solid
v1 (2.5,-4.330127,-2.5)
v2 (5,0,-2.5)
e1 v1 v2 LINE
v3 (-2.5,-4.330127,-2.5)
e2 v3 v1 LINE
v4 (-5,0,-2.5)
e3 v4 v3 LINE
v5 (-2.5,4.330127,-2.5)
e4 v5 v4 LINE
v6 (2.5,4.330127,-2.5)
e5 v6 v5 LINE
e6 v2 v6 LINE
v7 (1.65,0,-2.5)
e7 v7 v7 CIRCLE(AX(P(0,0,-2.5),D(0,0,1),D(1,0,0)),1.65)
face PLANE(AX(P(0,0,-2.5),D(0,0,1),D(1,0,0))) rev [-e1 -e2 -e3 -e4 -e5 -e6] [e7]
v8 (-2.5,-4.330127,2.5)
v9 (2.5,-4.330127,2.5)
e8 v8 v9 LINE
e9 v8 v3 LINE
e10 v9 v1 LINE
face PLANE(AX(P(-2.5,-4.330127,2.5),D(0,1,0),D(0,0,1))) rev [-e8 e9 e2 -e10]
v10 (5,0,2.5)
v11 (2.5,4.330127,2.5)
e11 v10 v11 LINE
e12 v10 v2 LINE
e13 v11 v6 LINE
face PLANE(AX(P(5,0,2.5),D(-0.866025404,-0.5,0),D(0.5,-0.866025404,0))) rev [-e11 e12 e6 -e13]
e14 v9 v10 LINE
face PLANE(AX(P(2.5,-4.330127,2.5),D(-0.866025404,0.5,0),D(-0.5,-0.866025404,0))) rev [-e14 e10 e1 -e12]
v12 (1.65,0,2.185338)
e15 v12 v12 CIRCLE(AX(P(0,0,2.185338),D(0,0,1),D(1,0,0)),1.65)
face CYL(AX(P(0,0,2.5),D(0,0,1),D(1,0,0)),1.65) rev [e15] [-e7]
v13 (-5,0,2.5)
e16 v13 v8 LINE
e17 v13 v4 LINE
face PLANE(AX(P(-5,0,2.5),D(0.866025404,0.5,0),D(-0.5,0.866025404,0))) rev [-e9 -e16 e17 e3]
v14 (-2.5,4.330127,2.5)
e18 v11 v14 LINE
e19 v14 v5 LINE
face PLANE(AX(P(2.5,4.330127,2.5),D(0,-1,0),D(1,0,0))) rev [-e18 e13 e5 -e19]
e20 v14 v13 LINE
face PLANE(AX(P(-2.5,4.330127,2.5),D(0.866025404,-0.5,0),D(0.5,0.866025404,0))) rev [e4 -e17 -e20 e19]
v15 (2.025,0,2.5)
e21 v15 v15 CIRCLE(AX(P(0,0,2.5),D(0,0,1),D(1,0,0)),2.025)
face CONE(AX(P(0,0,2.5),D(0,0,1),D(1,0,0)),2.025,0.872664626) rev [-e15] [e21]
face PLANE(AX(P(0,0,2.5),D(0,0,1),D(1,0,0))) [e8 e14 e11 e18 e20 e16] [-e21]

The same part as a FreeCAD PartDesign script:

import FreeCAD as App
import Part
import Sketcher
Q = App.Units.Quantity

doc = App.newDocument("Part")
body = doc.addObject("PartDesign::Body", "Body")

sketch1 = doc.addObject("Sketcher::SketchObject", "Sketch")
body.addObject(sketch1)
sketch1.AttachmentSupport = (doc.XY_Plane, [""])
sketch1.MapMode = "FlatFace"
sketch1.addGeometry(Part.LineSegment(App.Vector(5, 0, 0), App.Vector(2, 4, 0)), False)
sketch1.addGeometry(Part.LineSegment(App.Vector(2, 4, 0), App.Vector(-2, 4, 0)), False)
sketch1.addGeometry(Part.LineSegment(App.Vector(-2, 4, 0), App.Vector(-5, 0, 0)), False)
sketch1.addGeometry(Part.LineSegment(App.Vector(-5, 0, 0), App.Vector(-2, -4, 0)), False)
sketch1.addGeometry(Part.LineSegment(App.Vector(-2, -4, 0), App.Vector(2, -4, 0)), False)
sketch1.addGeometry(Part.LineSegment(App.Vector(2, -4, 0), App.Vector(5, 0, 0)), False)
sketch1.addConstraint(Sketcher.Constraint("Coincident", 0, 2, 1, 1))
sketch1.addConstraint(Sketcher.Constraint("Coincident", 1, 2, 2, 1))
sketch1.addConstraint(Sketcher.Constraint("Coincident", 2, 2, 3, 1))
sketch1.addConstraint(Sketcher.Constraint("Coincident", 3, 2, 4, 1))
sketch1.addConstraint(Sketcher.Constraint("Coincident", 4, 2, 5, 1))
sketch1.addConstraint(Sketcher.Constraint("Coincident", 5, 2, 0, 1))
sketch1.addConstraint(Sketcher.Constraint("Horizontal", 1))
sketch1.addConstraint(Sketcher.Constraint("Horizontal", 4))
sketch1.addConstraint(Sketcher.Constraint("Symmetric", 0, 2, 3, 2, -1, 1))
sketch1.addConstraint(Sketcher.Constraint("Symmetric", 2, 2, 5, 2, -1, 1))
sketch1.addConstraint(Sketcher.Constraint("PointOnObject", 2, 2, -1))
sketch1.addConstraint(Sketcher.Constraint("Parallel", 2, 5))
sketch1.addConstraint(Sketcher.Constraint("Vertical", 1, 2, 3, 2))
sketch1.addConstraint(Sketcher.Constraint("DistanceX", 1, 2, 1, 1, 5.0))
sketch1.addConstraint(Sketcher.Constraint("Angle", 0, Q("120 deg")))
sketch1.addConstraint(Sketcher.Constraint("Distance", 0, 5.0))
pad1 = doc.addObject("PartDesign::Pad", "Pad")
body.addObject(pad1)
pad1.Profile = sketch1
pad1.Length = 5
pad1.Midplane = True

sketch2 = doc.addObject("Sketcher::SketchObject", "Sketch001")
body.addObject(sketch2)
sketch2.AttachmentSupport = (doc.XY_Plane, [""])
sketch2.MapMode = "FlatFace"
sketch2.AttachmentOffset = App.Placement(App.Vector(0, 0, 2.5), App.Rotation())
sketch2.addGeometry(Part.Circle(App.Vector(0, 0, 0), App.Vector(0, 0, 1), 1.6), False)
sketch2.addConstraint(Sketcher.Constraint("Coincident", 0, 3, -1, 1))
sketch2.addConstraint(Sketcher.Constraint("Diameter", 0, 3.3))
doc.recompute()
hole = doc.addObject("PartDesign::Hole", "Hole")
body.addObject(hole)
hole.Profile = sketch2
hole.ThreadType = "None"
hole.Diameter = 3.3
hole.DepthType = "ThroughAll"
hole.HoleCutType = "Countersink"
hole.HoleCutDiameter = 4.05
hole.HoleCutCountersinkAngle = 100

doc.recompute()
